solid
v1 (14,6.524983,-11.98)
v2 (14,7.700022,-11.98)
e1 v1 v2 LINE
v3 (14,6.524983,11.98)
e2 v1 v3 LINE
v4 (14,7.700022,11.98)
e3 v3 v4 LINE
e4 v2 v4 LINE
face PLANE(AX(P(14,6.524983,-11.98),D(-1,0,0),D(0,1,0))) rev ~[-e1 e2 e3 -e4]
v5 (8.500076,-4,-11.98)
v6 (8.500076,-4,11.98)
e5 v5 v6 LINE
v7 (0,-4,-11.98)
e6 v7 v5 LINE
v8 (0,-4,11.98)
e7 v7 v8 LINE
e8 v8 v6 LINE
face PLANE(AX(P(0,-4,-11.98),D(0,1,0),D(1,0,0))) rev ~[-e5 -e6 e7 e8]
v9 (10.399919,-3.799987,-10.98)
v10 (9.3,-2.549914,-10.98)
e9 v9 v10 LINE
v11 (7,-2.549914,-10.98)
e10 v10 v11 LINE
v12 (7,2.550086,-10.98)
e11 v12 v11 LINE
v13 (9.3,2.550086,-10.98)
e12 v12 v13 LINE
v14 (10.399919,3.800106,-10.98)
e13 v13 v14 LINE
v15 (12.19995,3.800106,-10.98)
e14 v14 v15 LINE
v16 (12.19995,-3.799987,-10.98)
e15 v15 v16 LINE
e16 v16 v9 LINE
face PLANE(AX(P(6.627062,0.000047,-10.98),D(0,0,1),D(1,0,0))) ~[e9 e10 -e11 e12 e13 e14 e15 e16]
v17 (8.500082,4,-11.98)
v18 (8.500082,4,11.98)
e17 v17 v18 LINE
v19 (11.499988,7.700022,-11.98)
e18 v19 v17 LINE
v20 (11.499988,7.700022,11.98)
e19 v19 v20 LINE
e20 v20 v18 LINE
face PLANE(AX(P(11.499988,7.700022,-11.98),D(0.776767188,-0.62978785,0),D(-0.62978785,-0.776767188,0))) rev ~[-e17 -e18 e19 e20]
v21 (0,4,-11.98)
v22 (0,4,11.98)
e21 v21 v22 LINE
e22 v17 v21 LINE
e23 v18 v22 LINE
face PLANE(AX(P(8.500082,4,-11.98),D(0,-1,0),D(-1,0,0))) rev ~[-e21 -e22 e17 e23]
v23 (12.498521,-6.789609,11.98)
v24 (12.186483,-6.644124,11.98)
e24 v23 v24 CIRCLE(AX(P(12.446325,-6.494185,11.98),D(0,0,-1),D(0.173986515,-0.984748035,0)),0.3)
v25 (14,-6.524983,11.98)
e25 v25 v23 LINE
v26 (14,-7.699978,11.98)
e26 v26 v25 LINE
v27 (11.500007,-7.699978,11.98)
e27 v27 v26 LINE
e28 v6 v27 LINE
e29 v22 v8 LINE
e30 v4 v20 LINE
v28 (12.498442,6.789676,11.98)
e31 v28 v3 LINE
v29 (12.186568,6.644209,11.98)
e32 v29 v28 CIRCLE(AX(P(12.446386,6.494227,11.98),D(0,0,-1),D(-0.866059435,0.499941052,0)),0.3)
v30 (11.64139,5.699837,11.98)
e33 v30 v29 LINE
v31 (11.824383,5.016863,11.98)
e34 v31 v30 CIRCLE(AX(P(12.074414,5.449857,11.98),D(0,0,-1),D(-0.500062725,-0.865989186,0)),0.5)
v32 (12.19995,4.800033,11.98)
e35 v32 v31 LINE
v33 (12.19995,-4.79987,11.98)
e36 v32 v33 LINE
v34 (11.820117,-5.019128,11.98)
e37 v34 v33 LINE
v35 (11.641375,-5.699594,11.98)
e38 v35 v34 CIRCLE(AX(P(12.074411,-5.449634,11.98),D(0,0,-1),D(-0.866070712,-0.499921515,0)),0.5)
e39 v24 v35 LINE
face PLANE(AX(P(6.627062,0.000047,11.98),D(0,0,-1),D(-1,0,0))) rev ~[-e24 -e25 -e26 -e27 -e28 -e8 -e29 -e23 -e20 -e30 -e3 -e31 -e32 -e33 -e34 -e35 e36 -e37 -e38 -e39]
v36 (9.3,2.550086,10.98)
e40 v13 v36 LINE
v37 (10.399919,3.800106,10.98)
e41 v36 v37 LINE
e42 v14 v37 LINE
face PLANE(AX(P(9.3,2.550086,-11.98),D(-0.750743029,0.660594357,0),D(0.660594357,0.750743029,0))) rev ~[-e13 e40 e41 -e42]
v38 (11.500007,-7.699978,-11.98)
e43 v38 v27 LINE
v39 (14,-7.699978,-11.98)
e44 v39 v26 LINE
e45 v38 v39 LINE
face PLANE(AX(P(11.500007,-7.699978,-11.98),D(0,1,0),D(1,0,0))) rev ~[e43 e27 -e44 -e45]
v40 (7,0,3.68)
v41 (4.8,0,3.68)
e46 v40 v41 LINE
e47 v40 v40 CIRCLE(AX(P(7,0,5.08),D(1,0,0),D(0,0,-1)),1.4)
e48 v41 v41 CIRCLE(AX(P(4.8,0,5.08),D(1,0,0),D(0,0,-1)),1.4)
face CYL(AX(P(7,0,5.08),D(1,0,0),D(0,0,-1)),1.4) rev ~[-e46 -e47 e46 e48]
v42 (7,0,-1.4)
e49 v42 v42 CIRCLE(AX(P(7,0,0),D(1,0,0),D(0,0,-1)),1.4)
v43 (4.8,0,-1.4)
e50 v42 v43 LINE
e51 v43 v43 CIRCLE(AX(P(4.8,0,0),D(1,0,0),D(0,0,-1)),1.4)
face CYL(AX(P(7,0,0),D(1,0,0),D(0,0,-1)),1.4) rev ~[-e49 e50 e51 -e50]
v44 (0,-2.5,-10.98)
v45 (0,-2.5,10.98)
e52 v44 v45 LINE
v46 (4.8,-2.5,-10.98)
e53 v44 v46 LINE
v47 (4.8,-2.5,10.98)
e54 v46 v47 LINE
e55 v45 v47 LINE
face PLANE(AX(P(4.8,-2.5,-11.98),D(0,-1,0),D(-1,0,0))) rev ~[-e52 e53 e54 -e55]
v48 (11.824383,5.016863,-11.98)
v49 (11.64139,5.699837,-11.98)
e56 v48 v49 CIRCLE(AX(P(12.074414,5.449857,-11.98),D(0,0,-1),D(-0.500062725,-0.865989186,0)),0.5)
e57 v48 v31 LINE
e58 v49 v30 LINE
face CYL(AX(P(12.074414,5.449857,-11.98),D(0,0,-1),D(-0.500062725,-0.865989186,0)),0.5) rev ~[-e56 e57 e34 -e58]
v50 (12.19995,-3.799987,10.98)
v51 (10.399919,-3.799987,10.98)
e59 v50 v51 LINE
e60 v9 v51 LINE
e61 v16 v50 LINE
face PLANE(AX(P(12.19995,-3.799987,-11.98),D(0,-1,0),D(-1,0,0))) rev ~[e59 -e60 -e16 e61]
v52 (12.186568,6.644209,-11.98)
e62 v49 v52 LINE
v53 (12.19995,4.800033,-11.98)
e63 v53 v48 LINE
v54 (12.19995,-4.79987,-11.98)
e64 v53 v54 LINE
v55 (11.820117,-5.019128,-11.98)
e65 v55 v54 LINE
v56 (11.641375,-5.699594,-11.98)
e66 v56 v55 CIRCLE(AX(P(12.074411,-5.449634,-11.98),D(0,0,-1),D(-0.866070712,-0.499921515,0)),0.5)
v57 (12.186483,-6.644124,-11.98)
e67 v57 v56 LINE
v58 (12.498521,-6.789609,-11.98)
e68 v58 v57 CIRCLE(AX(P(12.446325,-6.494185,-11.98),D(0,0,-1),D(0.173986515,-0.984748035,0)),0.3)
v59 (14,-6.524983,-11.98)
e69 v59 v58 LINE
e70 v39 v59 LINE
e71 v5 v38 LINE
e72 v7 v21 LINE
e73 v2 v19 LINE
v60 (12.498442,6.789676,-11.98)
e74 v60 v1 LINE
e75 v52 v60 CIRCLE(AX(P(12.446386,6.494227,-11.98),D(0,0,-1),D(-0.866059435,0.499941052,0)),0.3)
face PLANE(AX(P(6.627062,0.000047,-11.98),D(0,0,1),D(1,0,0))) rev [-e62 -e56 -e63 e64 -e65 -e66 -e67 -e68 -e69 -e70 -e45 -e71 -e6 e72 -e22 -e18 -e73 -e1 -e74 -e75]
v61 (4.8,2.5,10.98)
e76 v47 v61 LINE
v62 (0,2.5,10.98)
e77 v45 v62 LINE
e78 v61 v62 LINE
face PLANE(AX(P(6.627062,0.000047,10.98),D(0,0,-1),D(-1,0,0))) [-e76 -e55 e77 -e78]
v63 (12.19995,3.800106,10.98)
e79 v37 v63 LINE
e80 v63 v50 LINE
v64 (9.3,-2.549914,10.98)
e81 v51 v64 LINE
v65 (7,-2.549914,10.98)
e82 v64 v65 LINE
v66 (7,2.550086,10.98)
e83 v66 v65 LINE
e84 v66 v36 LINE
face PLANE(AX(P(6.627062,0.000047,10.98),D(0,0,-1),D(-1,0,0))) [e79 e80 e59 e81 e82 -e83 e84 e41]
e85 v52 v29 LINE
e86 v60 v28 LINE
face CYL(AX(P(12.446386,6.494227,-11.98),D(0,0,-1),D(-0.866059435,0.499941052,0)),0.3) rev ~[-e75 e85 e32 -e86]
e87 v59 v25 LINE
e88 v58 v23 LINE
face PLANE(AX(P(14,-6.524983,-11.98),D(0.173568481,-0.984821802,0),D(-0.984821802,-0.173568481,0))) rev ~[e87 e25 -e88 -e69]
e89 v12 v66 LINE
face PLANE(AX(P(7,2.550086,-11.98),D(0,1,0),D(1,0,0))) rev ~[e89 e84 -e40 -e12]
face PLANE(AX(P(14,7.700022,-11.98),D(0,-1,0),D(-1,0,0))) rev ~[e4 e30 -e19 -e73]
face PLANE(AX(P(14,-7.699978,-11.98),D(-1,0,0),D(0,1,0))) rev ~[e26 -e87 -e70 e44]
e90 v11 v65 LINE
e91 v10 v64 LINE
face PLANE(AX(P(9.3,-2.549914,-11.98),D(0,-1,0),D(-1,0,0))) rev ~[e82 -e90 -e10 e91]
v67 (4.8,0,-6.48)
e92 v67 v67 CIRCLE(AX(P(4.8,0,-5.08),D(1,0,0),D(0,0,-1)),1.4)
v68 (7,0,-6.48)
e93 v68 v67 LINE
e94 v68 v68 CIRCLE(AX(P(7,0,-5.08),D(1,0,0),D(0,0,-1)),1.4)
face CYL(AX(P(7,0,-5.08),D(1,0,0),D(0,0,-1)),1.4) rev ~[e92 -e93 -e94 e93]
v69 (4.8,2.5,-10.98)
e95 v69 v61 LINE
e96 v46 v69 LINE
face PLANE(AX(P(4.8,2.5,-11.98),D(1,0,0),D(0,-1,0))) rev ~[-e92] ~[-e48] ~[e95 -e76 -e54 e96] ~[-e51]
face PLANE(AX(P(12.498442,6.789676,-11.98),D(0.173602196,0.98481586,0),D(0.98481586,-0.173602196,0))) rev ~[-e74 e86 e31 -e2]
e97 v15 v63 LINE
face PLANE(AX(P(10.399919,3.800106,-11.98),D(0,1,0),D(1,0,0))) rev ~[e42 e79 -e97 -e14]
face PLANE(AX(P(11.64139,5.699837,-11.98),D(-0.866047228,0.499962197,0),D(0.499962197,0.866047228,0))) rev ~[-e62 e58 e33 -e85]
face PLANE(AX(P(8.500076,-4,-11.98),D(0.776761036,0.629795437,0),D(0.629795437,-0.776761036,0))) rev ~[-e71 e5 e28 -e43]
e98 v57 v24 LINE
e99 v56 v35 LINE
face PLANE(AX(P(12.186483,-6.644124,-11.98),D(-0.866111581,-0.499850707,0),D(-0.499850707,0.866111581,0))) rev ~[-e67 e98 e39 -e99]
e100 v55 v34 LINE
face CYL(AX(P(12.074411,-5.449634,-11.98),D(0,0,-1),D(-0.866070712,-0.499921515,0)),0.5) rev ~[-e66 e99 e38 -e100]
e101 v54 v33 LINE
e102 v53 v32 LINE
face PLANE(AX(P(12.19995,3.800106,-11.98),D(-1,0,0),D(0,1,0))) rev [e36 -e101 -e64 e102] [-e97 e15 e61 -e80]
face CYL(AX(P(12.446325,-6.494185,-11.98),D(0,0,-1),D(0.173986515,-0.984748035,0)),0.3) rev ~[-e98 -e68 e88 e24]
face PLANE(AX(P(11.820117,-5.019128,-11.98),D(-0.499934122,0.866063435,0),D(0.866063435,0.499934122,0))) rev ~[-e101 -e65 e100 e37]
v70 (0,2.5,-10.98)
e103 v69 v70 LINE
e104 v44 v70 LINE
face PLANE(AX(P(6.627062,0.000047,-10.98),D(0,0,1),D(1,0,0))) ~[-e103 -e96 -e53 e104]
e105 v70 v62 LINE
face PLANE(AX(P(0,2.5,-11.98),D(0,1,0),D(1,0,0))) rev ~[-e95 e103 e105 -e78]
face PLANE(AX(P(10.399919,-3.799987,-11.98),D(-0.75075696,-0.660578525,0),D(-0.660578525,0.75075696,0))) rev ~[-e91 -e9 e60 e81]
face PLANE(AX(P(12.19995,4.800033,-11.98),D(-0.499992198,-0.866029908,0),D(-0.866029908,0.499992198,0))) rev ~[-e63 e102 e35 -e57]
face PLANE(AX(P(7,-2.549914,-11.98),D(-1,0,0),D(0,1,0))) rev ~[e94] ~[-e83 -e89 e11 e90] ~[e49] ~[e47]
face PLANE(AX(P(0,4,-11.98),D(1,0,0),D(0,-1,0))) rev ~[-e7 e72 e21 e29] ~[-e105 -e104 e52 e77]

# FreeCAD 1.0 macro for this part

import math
import FreeCAD as App
import Part
import Sketcher


def add_polygon(sketch, points):
    """Adds a closed chain of lines whose ends are joined by coincident constraints."""
    first, n = sketch.GeometryCount, len(points)
    for a, b in zip(points, points[1:] + points[:1]):
        sketch.addGeometry(Part.LineSegment(App.Vector(*a, 0), App.Vector(*b, 0)), False)
    for i in range(n):
        sketch.addConstraint(Sketcher.Constraint("Coincident", first + i, 2, first + (i + 1) % n, 1))

doc = App.newDocument("Part")
body = doc.addObject("PartDesign::Body", "Body")

# Sketch on XY plane
sketch1 = body.newObject("Sketcher::SketchObject", "Sketch")
sketch1.AttachmentSupport = (doc.getObject("XY_Plane"), [""])
sketch1.MapMode = "FlatFace"
sketch1.addGeometry(Part.LineSegment(App.Vector(0, 4, 0), App.Vector(0, 2.5, 0)), False)
sketch1.addGeometry(Part.LineSegment(App.Vector(0, 2.5, 0), App.Vector(4.8, 2.5, 0)), False)
sketch1.addGeometry(Part.LineSegment(App.Vector(4.8, 2.5, 0), App.Vector(4.8, -2.5, 0)), False)
sketch1.addGeometry(Part.LineSegment(App.Vector(4.8, -2.5, 0), App.Vector(0, -2.5, 0)), False)
sketch1.addGeometry(Part.LineSegment(App.Vector(0, -2.5, 0), App.Vector(0, -4, 0)), False)
sketch1.addGeometry(Part.LineSegment(App.Vector(0, -4, 0), App.Vector(8.5, -4, 0)), False)
sketch1.addGeometry(Part.LineSegment(App.Vector(8.5, -4, 0), App.Vector(11.5, -7.7, 0)), False)
sketch1.addGeometry(Part.LineSegment(App.Vector(11.5, -7.7, 0), App.Vector(14, -7.7, 0)), False)
sketch1.addGeometry(Part.LineSegment(App.Vector(14, -7.7, 0), App.Vector(14, -6.52, 0)), False)
sketch1.addGeometry(Part.LineSegment(App.Vector(14, -6.52, 0), App.Vector(12.5, -6.79, 0)), False)
sketch1.addGeometry(Part.ArcOfCircle(Part.Circle(App.Vector(12.45, -6.49, 0), App.Vector(0, 0, 1), 0.3), math.radians(-150), math.radians(-80)), False)
sketch1.addGeometry(Part.LineSegment(App.Vector(12.19, -6.64, 0), App.Vector(11.64, -5.7, 0)), False)
sketch1.addGeometry(Part.ArcOfCircle(Part.Circle(App.Vector(12.07, -5.45, 0), App.Vector(0, 0, 1), 0.5), math.radians(121), math.radians(210)), False)
sketch1.addGeometry(Part.LineSegment(App.Vector(11.82, -5.02, 0), App.Vector(12.2, -4.8, 0)), False)
sketch1.addGeometry(Part.LineSegment(App.Vector(12.2, -4.8, 0), App.Vector(12.2, -3.8, 0)), False)
sketch1.addGeometry(Part.LineSegment(App.Vector(12.2, -3.8, 0), App.Vector(10.4, -3.8, 0)), False)
sketch1.addGeometry(Part.LineSegment(App.Vector(10.4, -3.8, 0), App.Vector(9.3, -2.55, 0)), False)
sketch1.addGeometry(Part.LineSegment(App.Vector(9.3, -2.55, 0), App.Vector(7, -2.55, 0)), False)
sketch1.addGeometry(Part.LineSegment(App.Vector(7, -2.55, 0), App.Vector(7, 2.55, 0)), False)
sketch1.addGeometry(Part.LineSegment(App.Vector(7, 2.55, 0), App.Vector(9.3, 2.55, 0)), False)
sketch1.addGeometry(Part.LineSegment(App.Vector(9.3, 2.55, 0), App.Vector(10.4, 3.8, 0)), False)
sketch1.addGeometry(Part.LineSegment(App.Vector(10.4, 3.8, 0), App.Vector(12.2, 3.8, 0)), False)
sketch1.addGeometry(Part.LineSegment(App.Vector(12.2, 3.8, 0), App.Vector(12.2, 4.8, 0)), False)
sketch1.addGeometry(Part.LineSegment(App.Vector(12.2, 4.8, 0), App.Vector(11.82, 5.02, 0)), False)
sketch1.addGeometry(Part.ArcOfCircle(Part.Circle(App.Vector(12.07, 5.45, 0), App.Vector(0, 0, 1), 0.5), math.radians(150), math.radians(240)), False)
sketch1.addGeometry(Part.LineSegment(App.Vector(11.64, 5.7, 0), App.Vector(12.19, 6.64, 0)), False)
sketch1.addGeometry(Part.ArcOfCircle(Part.Circle(App.Vector(12.45, 6.49, 0), App.Vector(0, 0, 1), 0.3), math.radians(80), math.radians(150)), False)
sketch1.addGeometry(Part.LineSegment(App.Vector(12.5, 6.79, 0), App.Vector(14, 6.52, 0)), False)
sketch1.addGeometry(Part.LineSegment(App.Vector(14, 6.52, 0), App.Vector(14, 7.7, 0)), False)
sketch1.addGeometry(Part.LineSegment(App.Vector(14, 7.7, 0), App.Vector(11.5, 7.7, 0)), False)
sketch1.addGeometry(Part.LineSegment(App.Vector(11.5, 7.7, 0), App.Vector(8.5, 4, 0)), False)
sketch1.addGeometry(Part.LineSegment(App.Vector(8.5, 4, 0), App.Vector(0, 4, 0)), False)
sketch1.addConstraint(Sketcher.Constraint("Coincident", 0, 2, 1, 1))
sketch1.addConstraint(Sketcher.Constraint("Coincident", 1, 2, 2, 1))
sketch1.addConstraint(Sketcher.Constraint("Coincident", 2, 2, 3, 1))
sketch1.addConstraint(Sketcher.Constraint("Coincident", 3, 2, 4, 1))
sketch1.addConstraint(Sketcher.Constraint("Coincident", 4, 2, 5, 1))
sketch1.addConstraint(Sketcher.Constraint("Coincident", 5, 2, 6, 1))
sketch1.addConstraint(Sketcher.Constraint("Coincident", 6, 2, 7, 1))
sketch1.addConstraint(Sketcher.Constraint("Coincident", 7, 2, 8, 1))
sketch1.addConstraint(Sketcher.Constraint("Coincident", 8, 2, 9, 1))
sketch1.addConstraint(Sketcher.Constraint("Coincident", 9, 2, 10, 2))
sketch1.addConstraint(Sketcher.Constraint("Coincident", 10, 1, 11, 1))
sketch1.addConstraint(Sketcher.Constraint("Coincident", 11, 2, 12, 2))
sketch1.addConstraint(Sketcher.Constraint("Coincident", 12, 1, 13, 1))
sketch1.addConstraint(Sketcher.Constraint("Coincident", 13, 2, 14, 1))
sketch1.addConstraint(Sketcher.Constraint("Coincident", 14, 2, 15, 1))
sketch1.addConstraint(Sketcher.Constraint("Coincident", 15, 2, 16, 1))
sketch1.addConstraint(Sketcher.Constraint("Coincident", 16, 2, 17, 1))
sketch1.addConstraint(Sketcher.Constraint("Coincident", 17, 2, 18, 1))
sketch1.addConstraint(Sketcher.Constraint("Coincident", 18, 2, 19, 1))
sketch1.addConstraint(Sketcher.Constraint("Coincident", 19, 2, 20, 1))
sketch1.addConstraint(Sketcher.Constraint("Coincident", 20, 2, 21, 1))
sketch1.addConstraint(Sketcher.Constraint("Coincident", 21, 2, 22, 1))
sketch1.addConstraint(Sketcher.Constraint("Coincident", 22, 2, 23, 1))
sketch1.addConstraint(Sketcher.Constraint("Coincident", 23, 2, 24, 2))
sketch1.addConstraint(Sketcher.Constraint("Coincident", 24, 1, 25, 1))
sketch1.addConstraint(Sketcher.Constraint("Coincident", 25, 2, 26, 2))
sketch1.addConstraint(Sketcher.Constraint("Coincident", 26, 1, 27, 1))
sketch1.addConstraint(Sketcher.Constraint("Coincident", 27, 2, 28, 1))
sketch1.addConstraint(Sketcher.Constraint("Coincident", 28, 2, 29, 1))
sketch1.addConstraint(Sketcher.Constraint("Coincident", 29, 2, 30, 1))
sketch1.addConstraint(Sketcher.Constraint("Coincident", 30, 2, 31, 1))
sketch1.addConstraint(Sketcher.Constraint("Coincident", 31, 2, 0, 1))
sketch1.addConstraint(Sketcher.Constraint("Vertical", 0))
sketch1.addConstraint(Sketcher.Constraint("Horizontal", 1))
sketch1.addConstraint(Sketcher.Constraint("Vertical", 2))
sketch1.addConstraint(Sketcher.Constraint("Horizontal", 3))
sketch1.addConstraint(Sketcher.Constraint("Vertical", 4))
sketch1.addConstraint(Sketcher.Constraint("Horizontal", 5))
sketch1.addConstraint(Sketcher.Constraint("Horizontal", 7))
sketch1.addConstraint(Sketcher.Constraint("Vertical", 8))
sketch1.addConstraint(Sketcher.Constraint("Vertical", 14))
sketch1.addConstraint(Sketcher.Constraint("Horizontal", 15))
sketch1.addConstraint(Sketcher.Constraint("Horizontal", 17))
sketch1.addConstraint(Sketcher.Constraint("Vertical", 18))
sketch1.addConstraint(Sketcher.Constraint("Horizontal", 19))
sketch1.addConstraint(Sketcher.Constraint("Horizontal", 21))
sketch1.addConstraint(Sketcher.Constraint("Vertical", 22))
sketch1.addConstraint(Sketcher.Constraint("Vertical", 28))
sketch1.addConstraint(Sketcher.Constraint("Horizontal", 29))
sketch1.addConstraint(Sketcher.Constraint("Horizontal", 31))
sketch1.addConstraint(Sketcher.Constraint("Equal", 12, 24))
sketch1.addConstraint(Sketcher.Constraint("Equal", 10, 26))
sketch1.addConstraint(Sketcher.Constraint("Symmetric", 0, 2, 3, 2, -1, 1))
sketch1.addConstraint(Sketcher.Constraint("Symmetric", 8, 2, 27, 2, -1))
sketch1.addConstraint(Sketcher.Constraint("Symmetric", 5, 2, 30, 2, -1))
sketch1.addConstraint(Sketcher.Constraint("PointOnObject", 0, 2, -2))
sketch1.addConstraint(Sketcher.Constraint("Vertical", 16, 2, 19, 2))
sketch1.addConstraint(Sketcher.Constraint("Vertical", 15, 2, 20, 2))
sketch1.addConstraint(Sketcher.Constraint("Vertical", 14, 2, 21, 2))
sketch1.addConstraint(Sketcher.Constraint("Radius", 10, 0.3))
sketch1.addConstraint(Sketcher.Constraint("Radius", 12, 0.5))
sketch1.addConstraint(Sketcher.Constraint("DistanceY", 2, 2, 2, 1, 5.0))
sketch1.addConstraint(Sketcher.Constraint("DistanceX", 1, 1, 1, 2, 4.8))
sketch1.addConstraint(Sketcher.Constraint("DistanceX", 17, 2, 17, 1, 2.3))
sketch1.addConstraint(Sketcher.Constraint("DistanceY", 0, 2, 0, 1, 1.5))
sketch1.addConstraint(Sketcher.Constraint("DistanceY", 18, 1, 18, 2, 5.1))
sketch1.addConstraint(Sketcher.Constraint("DistanceX", -1, 1, 7, 2, 14.0))
sketch1.addConstraint(Sketcher.Constraint("DistanceX", -1, 1, 17, 2, 7.0))
sketch1.addConstraint(Sketcher.Constraint("DistanceX", 15, 2, 15, 1, 1.800031))
sketch1.addConstraint(Sketcher.Constraint("DistanceX", 29, 2, 29, 1, 2.500012))
sketch1.addConstraint(Sketcher.Constraint("DistanceY", 28, 1, 28, 2, 1.175039))
sketch1.addConstraint(Sketcher.Constraint("DistanceY", 8, 2, 10, 3, 0.030798))
sketch1.addConstraint(Sketcher.Constraint("DistanceX", 15, 2, 12, 1, 1.420198))
sketch1.addConstraint(Sketcher.Constraint("DistanceX", 29, 2, 24, 1, 0.141402))
sketch1.addConstraint(Sketcher.Constraint("DistanceX", 30, 2, 23, 2, 3.324301))
sketch1.addConstraint(Sketcher.Constraint("Distance", 6, 4.763342))
sketch1.addConstraint(Sketcher.Constraint("Distance", 9, 1.52462))
sketch1.addConstraint(Sketcher.Constraint("Distance", 11, 1.09054))
sketch1.addConstraint(Sketcher.Constraint("Distance", 25, 1.09044))
sketch1.addConstraint(Sketcher.Constraint("Distance", 27, 1.52471))
sketch1.addConstraint(Sketcher.Constraint("Distance", 30, 4.76336))
sketch1.addConstraint(Sketcher.Constraint("DistanceX", 5, 1, 5, 2, 8.500076))
sketch1.addConstraint(Sketcher.Constraint("DistanceX", 7, 1, 7, 2, 2.499993))
sketch1.addConstraint(Sketcher.Constraint("DistanceY", 14, 1, 14, 2, 0.999883))
sketch1.addConstraint(Sketcher.Constraint("DistanceY", 22, 1, 22, 2, 0.999927))
sketch1.addConstraint(Sketcher.Constraint("DistanceX", -1, 1, 12, 3, 12.074411))
sketch1.addConstraint(Sketcher.Constraint("DistanceX", -1, 1, 9, 2, 12.498521))
sketch1.addConstraint(Sketcher.Constraint("DistanceY", 12, 1, -1, 1, 5.019128))
sketch1.addConstraint(Sketcher.Constraint("DistanceX", -1, 1, 13, 2, 12.19995))
sketch1.addConstraint(Sketcher.Constraint("DistanceY", 13, 2, -1, 1, 4.79987))
sketch1.addConstraint(Sketcher.Constraint("DistanceX", -1, 1, 25, 2, 12.186568))
sketch1.addConstraint(Sketcher.Constraint("DistanceY", -1, 1, 25, 2, 6.644209))
sketch1.addConstraint(Sketcher.Constraint("DistanceX", -1, 1, 26, 1, 12.498442))
sketch1.addConstraint(Sketcher.Constraint("DistanceY", 12, 3, 24, 3, 10.899491))
sketch1.addConstraint(Sketcher.Constraint("DistanceY", 10, 1, 10, 3, 0.149939))
sketch1.addConstraint(Sketcher.Constraint("DistanceY", 18, 2, 24, 3, 2.899771))
sketch1.addConstraint(Sketcher.Constraint("DistanceY", 19, 2, 20, 2, 1.25002))
pad1 = body.newObject("PartDesign::Pad", "Pad")
pad1.Profile = sketch1
pad1.Type = "TwoLengths"
pad1.Length = 11.98
pad1.Length2 = 11.98

# Sketch on XY plane
sketch2 = body.newObject("Sketcher::SketchObject", "Sketch001")
sketch2.AttachmentSupport = (doc.getObject("XY_Plane"), [""])
sketch2.MapMode = "FlatFace"
sketch2.AttachmentOffset = App.Placement(App.Vector(0, 0, 11.98), App.Rotation())
add_polygon(sketch2, [(12.19995, 3.800106), (10.399919, 3.800106), (9.3, 2.550086), (7, 2.550086), (0, 2.5), (0, -2.5), (7, -2.549914), (9.3, -2.549914), (10.399919, -3.799987), (12.19995, -3.799987)])  # lines 0-9
sketch2.addConstraint(Sketcher.Constraint("Horizontal", 0))
sketch2.addConstraint(Sketcher.Constraint("Horizontal", 2))
sketch2.addConstraint(Sketcher.Constraint("Vertical", 4))
sketch2.addConstraint(Sketcher.Constraint("Horizontal", 6))
sketch2.addConstraint(Sketcher.Constraint("Horizontal", 8))
sketch2.addConstraint(Sketcher.Constraint("Vertical", 9))
sketch2.addConstraint(Sketcher.Constraint("PointOnObject", 3, 2, -2))
sketch2.addConstraint(Sketcher.Constraint("DistanceY", 4, 2, 4, 1, 5.0))
sketch2.addConstraint(Sketcher.Constraint("DistanceX", 2, 2, 2, 1, 2.3))
sketch2.addConstraint(Sketcher.Constraint("DistanceX", 6, 1, 6, 2, 2.3))
sketch2.addConstraint(Sketcher.Constraint("DistanceX", -1, 1, 2, 2, 7.0))
sketch2.addConstraint(Sketcher.Constraint("DistanceX", -1, 1, 5, 2, 7.0))
sketch2.addConstraint(Sketcher.Constraint("DistanceY", -1, 1, 3, 2, 2.5))
sketch2.addConstraint(Sketcher.Constraint("DistanceY", 5, 2, 2, 2, 5.1))
sketch2.addConstraint(Sketcher.Constraint("DistanceX", 0, 2, 0, 1, 1.800031))
sketch2.addConstraint(Sketcher.Constraint("DistanceX", 8, 1, 8, 2, 1.800031))
sketch2.addConstraint(Sketcher.Constraint("DistanceY", 9, 1, 9, 2, 7.600094))
sketch2.addConstraint(Sketcher.Constraint("DistanceX", -1, 1, 0, 2, 10.399919))
sketch2.addConstraint(Sketcher.Constraint("DistanceY", 1, 2, 0, 2, 1.25002))
sketch2.addConstraint(Sketcher.Constraint("DistanceY", -1, 1, 0, 2, 3.800106))
pad2 = body.newObject("PartDesign::Pad", "Pad001")
pad2.Profile = sketch2
pad2.Length = 1
pad2.Reversed = True
doc.recompute()

mirrored = body.newObject("PartDesign::Mirrored", "Mirrored")
mirrored.Originals = [pad2]
mirrored.MirrorPlane = (doc.getObject("XY_Plane"), [""])
body.Tip = mirrored

# Sketch on YZ plane
sketch3 = body.newObject("Sketcher::SketchObject", "Sketch002")
sketch3.AttachmentSupport = (doc.getObject("YZ_Plane"), [""])
sketch3.MapMode = "FlatFace"
sketch3.AttachmentOffset = App.Placement(App.Vector(0, 0, 7), App.Rotation())
sketch3.addGeometry(Part.Circle(App.Vector(0, 0, 0), App.Vector(0, 0, 1), 1.4), False)
sketch3.addGeometry(Part.Circle(App.Vector(0, 5.1, 0), App.Vector(0, 0, 1), 1.4), False)
sketch3.addGeometry(Part.Circle(App.Vector(0, -5.1, 0), App.Vector(0, 0, 1), 1.4), False)
sketch3.addConstraint(Sketcher.Constraint("Coincident", 0, 3, -1, 1))
sketch3.addConstraint(Sketcher.Constraint("Equal", 0, 1))
sketch3.addConstraint(Sketcher.Constraint("Equal", 1, 2))
sketch3.addConstraint(Sketcher.Constraint("Symmetric", 1, 3, 2, 3, -1, 1))
sketch3.addConstraint(Sketcher.Constraint("PointOnObject", 1, 3, -2))
sketch3.addConstraint(Sketcher.Constraint("Diameter", 0, 2.8))
sketch3.addConstraint(Sketcher.Constraint("DistanceY", -1, 1, 1, 3, 5.08))
pocket1 = body.newObject("PartDesign::Pocket", "Pocket")
pocket1.Profile = sketch3
pocket1.Type = "ThroughAll"

doc.recompute()
